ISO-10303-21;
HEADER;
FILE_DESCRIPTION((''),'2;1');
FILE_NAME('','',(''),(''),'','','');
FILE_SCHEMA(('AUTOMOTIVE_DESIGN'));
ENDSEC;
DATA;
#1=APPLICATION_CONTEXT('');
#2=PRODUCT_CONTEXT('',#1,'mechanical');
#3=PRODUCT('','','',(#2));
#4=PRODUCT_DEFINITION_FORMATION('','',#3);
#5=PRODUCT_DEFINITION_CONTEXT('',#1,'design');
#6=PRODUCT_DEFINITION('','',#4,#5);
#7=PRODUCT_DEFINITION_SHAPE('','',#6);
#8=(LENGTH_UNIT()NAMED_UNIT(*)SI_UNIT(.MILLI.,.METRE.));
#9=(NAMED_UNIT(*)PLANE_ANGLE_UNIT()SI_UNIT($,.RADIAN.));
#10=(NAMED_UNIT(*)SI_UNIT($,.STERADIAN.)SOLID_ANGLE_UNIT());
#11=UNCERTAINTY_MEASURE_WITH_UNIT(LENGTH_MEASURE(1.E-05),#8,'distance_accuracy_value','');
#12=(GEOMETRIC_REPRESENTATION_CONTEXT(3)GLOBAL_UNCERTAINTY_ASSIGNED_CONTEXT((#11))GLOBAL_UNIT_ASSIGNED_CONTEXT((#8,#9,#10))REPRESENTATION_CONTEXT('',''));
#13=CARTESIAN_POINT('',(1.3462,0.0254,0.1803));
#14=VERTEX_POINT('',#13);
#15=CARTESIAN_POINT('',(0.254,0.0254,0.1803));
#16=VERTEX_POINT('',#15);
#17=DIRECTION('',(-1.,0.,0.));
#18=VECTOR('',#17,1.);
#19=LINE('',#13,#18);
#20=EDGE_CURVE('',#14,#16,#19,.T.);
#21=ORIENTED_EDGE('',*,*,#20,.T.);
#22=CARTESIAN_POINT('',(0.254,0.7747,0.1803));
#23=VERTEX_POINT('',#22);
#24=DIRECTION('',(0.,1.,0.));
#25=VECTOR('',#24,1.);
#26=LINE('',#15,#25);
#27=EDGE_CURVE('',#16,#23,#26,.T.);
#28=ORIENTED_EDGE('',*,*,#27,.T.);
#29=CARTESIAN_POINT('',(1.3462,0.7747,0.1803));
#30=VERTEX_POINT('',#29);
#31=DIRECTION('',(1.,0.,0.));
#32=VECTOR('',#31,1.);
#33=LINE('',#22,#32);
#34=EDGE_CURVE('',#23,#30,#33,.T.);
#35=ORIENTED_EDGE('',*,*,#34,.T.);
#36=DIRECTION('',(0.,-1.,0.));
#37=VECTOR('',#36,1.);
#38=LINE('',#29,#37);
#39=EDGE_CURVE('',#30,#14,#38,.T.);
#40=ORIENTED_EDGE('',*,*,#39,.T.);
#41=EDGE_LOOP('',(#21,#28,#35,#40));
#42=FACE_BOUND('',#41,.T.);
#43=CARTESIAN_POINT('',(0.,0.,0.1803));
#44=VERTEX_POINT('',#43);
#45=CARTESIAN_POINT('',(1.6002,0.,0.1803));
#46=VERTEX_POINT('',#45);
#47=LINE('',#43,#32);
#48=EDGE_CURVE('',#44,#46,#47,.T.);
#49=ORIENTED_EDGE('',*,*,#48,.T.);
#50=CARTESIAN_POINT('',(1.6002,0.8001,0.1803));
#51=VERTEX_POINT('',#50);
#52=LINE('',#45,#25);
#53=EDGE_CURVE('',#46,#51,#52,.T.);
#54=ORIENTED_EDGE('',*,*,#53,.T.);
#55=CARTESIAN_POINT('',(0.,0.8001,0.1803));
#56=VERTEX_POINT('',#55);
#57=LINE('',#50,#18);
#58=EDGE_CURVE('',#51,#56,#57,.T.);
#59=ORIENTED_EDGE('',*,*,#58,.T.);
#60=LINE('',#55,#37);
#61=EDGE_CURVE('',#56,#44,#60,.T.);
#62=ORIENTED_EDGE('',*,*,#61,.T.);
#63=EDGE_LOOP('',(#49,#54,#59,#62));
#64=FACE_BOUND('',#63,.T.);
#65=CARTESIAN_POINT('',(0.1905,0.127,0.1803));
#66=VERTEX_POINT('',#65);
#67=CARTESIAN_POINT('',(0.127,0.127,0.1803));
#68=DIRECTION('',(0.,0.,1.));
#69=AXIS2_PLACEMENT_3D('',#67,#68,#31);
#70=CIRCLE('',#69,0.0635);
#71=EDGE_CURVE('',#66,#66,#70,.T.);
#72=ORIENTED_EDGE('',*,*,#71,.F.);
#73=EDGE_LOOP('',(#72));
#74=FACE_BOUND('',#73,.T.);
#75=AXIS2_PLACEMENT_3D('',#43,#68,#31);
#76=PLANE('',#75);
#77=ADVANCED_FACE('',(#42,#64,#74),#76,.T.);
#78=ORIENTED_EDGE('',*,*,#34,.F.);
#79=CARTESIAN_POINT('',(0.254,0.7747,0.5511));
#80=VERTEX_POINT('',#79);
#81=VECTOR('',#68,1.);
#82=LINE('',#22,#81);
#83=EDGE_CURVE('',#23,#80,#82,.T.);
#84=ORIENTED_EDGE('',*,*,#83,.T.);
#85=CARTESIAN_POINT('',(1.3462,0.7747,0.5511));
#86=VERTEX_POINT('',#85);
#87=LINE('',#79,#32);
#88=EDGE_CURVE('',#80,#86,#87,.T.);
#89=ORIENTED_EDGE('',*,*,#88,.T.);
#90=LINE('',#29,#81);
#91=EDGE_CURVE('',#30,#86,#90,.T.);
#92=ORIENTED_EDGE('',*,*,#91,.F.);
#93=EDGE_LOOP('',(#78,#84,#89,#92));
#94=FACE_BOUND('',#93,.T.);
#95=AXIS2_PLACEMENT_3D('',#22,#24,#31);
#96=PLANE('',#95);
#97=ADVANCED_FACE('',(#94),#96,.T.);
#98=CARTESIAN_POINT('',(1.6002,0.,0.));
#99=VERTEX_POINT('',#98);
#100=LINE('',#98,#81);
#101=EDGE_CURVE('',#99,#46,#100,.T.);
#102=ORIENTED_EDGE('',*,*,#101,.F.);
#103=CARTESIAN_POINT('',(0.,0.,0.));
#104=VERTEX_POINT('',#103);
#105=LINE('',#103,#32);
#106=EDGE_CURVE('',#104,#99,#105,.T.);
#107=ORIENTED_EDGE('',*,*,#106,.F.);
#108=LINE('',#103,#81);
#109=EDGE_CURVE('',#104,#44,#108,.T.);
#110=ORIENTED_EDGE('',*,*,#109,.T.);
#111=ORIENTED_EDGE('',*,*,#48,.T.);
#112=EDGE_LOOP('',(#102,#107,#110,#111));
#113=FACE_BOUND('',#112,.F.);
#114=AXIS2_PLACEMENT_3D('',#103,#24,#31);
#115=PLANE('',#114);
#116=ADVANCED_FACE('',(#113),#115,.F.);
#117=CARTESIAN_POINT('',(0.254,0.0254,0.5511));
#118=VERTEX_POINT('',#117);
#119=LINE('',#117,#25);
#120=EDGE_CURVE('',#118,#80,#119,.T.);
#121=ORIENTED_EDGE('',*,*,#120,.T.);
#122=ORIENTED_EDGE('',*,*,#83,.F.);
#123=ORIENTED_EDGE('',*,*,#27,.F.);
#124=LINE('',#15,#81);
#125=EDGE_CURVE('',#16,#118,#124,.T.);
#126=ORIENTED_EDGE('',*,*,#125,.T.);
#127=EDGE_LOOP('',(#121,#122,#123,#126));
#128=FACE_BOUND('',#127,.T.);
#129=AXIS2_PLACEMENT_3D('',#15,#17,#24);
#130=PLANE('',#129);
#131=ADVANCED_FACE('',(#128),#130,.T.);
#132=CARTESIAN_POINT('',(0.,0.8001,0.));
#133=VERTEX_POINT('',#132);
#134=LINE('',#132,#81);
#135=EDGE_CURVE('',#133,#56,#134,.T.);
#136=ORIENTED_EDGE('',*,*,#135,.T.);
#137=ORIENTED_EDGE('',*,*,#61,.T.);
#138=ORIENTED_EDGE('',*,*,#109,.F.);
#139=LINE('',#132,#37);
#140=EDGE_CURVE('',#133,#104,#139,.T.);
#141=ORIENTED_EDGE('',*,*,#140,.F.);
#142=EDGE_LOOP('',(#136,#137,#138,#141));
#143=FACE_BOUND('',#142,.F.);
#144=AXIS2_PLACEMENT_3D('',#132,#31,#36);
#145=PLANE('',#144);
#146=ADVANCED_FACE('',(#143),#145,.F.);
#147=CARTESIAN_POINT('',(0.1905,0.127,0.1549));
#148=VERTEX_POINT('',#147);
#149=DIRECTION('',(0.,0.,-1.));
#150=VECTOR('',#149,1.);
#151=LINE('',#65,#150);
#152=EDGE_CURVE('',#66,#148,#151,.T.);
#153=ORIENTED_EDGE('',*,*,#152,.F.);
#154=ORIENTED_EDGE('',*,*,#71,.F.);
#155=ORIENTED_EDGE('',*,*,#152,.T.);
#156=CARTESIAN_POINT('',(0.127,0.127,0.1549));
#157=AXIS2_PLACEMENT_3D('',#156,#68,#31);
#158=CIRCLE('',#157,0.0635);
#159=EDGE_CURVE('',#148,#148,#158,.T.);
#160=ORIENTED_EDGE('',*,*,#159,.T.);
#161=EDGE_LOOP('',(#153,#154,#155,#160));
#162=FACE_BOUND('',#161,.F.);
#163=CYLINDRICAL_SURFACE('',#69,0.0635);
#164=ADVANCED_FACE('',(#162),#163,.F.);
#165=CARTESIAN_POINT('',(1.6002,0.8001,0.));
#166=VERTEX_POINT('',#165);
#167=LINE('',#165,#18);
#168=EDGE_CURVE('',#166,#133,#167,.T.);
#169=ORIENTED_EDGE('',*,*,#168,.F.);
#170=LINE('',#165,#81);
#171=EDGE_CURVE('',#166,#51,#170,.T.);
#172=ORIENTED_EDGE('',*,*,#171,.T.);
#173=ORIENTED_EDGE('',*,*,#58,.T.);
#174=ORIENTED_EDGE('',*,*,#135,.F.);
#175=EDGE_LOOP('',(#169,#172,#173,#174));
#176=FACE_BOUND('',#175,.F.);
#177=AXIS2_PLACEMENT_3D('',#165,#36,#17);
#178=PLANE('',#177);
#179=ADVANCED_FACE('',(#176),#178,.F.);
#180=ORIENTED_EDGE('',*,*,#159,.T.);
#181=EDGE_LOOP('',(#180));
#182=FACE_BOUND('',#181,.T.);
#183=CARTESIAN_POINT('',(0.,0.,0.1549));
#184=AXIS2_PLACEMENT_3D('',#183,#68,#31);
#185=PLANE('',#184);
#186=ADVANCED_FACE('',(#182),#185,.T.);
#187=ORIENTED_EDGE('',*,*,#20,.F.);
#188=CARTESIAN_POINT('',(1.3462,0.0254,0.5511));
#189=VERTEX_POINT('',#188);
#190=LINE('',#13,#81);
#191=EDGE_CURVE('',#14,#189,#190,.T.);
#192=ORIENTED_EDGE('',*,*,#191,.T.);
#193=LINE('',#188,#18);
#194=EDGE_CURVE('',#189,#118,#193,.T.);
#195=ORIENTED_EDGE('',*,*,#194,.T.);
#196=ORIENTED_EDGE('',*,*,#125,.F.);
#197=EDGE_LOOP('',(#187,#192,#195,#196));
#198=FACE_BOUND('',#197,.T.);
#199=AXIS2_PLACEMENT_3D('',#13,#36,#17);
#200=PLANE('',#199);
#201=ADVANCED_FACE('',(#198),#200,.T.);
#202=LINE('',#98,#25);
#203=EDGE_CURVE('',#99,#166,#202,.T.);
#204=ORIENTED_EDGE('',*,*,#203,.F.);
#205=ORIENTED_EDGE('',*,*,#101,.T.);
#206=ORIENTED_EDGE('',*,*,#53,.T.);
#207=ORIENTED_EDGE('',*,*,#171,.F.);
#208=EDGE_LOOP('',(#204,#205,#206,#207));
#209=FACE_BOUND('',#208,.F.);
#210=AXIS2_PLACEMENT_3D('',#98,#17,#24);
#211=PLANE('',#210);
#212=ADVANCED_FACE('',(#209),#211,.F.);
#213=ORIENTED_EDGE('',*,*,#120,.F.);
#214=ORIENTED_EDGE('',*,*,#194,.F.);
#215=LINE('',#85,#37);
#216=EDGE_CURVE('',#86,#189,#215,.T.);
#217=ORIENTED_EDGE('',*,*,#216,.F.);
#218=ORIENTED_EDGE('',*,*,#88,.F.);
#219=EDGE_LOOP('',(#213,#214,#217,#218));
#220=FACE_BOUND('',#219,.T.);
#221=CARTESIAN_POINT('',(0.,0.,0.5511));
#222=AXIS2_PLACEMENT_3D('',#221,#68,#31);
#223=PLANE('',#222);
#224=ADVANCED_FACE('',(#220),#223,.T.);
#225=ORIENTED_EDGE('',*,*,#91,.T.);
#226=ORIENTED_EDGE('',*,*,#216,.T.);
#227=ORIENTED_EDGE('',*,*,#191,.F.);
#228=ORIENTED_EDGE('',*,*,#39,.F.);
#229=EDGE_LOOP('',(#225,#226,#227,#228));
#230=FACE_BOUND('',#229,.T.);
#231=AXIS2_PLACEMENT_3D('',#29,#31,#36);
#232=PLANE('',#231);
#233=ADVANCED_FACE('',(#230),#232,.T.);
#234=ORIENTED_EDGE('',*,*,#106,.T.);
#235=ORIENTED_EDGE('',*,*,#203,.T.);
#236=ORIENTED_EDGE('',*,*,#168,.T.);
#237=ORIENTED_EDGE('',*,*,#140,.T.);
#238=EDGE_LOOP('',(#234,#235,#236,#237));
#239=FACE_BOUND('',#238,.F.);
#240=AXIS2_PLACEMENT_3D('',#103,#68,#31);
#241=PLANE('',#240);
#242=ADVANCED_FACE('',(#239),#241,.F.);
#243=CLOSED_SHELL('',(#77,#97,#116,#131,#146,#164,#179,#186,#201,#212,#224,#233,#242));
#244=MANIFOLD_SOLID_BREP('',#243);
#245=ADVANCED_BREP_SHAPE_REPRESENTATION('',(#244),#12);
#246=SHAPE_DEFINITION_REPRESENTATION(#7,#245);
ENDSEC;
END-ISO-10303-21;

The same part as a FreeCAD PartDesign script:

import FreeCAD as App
import Part
import Sketcher
Q = App.Units.Quantity


def add_polygon(sketch, points):
    """Adds a closed chain of lines whose ends are joined by coincident constraints."""
    first, n = sketch.GeometryCount, len(points)
    for a, b in zip(points, points[1:] + points[:1]):
        sketch.addGeometry(Part.LineSegment(App.Vector(*a, 0), App.Vector(*b, 0)), False)
    for i in range(n):
        sketch.addConstraint(Sketcher.Constraint("Coincident", first + i, 2, first + (i + 1) % n, 1))

doc = App.newDocument("Part")
params = doc.addObject("Spreadsheet::Sheet", "Params")
for row, (alias, value) in enumerate([
    ("sketch1_width", "0.063 in"),
    ("pad1_length", "0.0070984 in"),
    ("sketch2_width", "0.043 in"),
    ("pad2_length", "0.0145984 in"),
    ("sketch3_diameter", "0.005 in"),
    ("pocket1_length", "0.001 in"),
], start=1):
    params.set(f"A{row}", alias)
    params.set(f"B{row}", "=" + value)
    params.setAlias(f"B{row}", alias)

body = doc.addObject("PartDesign::Body", "Body")

sketch1 = body.newObject("Sketcher::SketchObject", "Sketch")
sketch1.AttachmentSupport = (doc.getObject("XY_Plane"), [""])
sketch1.MapMode = "FlatFace"
add_polygon(sketch1, [(0, 0.8), (0, 0), (1.6, 0), (1.6, 0.8)])
sketch1.addConstraint([
    Sketcher.Constraint("Vertical", 0),
    Sketcher.Constraint("Horizontal", 1),
    Sketcher.Constraint("Vertical", 2),
    Sketcher.Constraint("Horizontal", 3),
    Sketcher.Constraint("Coincident", 0, 2, -1, 1),
    Sketcher.Constraint("DistanceX", 1, 1, 1, 2, Q("0.063 in")),
    Sketcher.Constraint("DistanceY", 0, 2, 0, 1, Q("0.0315 in")),
])
sketch1.setExpression("Constraints[9]", "Params.sketch1_width")
pad1 = body.newObject("PartDesign::Pad", "Pad")
pad1.Profile = sketch1
pad1.setExpression("Length", "Params.pad1_length")

sketch2 = body.newObject("Sketcher::SketchObject", "Sketch001")
sketch2.AttachmentSupport = (doc.getObject("XY_Plane"), [""])
sketch2.MapMode = "FlatFace"
sketch2.AttachmentOffset = App.Placement(App.Vector(0, 0, 0.0070984 * 25.4), App.Rotation())
add_polygon(sketch2, [(1.3, 0.8), (0.3, 0.8), (0.3, 0), (1.3, 0)])
sketch2.addConstraint([
    Sketcher.Constraint("Horizontal", 0),
    Sketcher.Constraint("Vertical", 1),
    Sketcher.Constraint("Horizontal", 2),
    Sketcher.Constraint("Vertical", 3),
    Sketcher.Constraint("DistanceX", -1, 1, 0, 2, Q("0.01 in")),
    Sketcher.Constraint("DistanceY", -1, 1, 1, 2, Q("0.001 in")),
    Sketcher.Constraint("DistanceX", 0, 2, 0, 1, Q("0.043 in")),
    Sketcher.Constraint("DistanceY", 1, 2, 1, 1, Q("0.0295 in")),
])
sketch2.setExpression("Constraints[10]", "Params.sketch2_width")
pad2 = body.newObject("PartDesign::Pad", "Pad001")
pad2.Profile = sketch2
pad2.setExpression("Length", "Params.pad2_length")

sketch3 = body.newObject("Sketcher::SketchObject", "Sketch002")
sketch3.AttachmentSupport = (doc.getObject("XY_Plane"), [""])
sketch3.MapMode = "FlatFace"
sketch3.AttachmentOffset = App.Placement(App.Vector(0, 0, 0.0070984 * 25.4), App.Rotation())
sketch3.addGeometry(Part.Circle(App.Vector(0.13, 0.13, 0), App.Vector(0, 0, 1), 0.06), False)
sketch3.addConstraint([
    Sketcher.Constraint("Diameter", 0, Q("0.005 in")),
    Sketcher.Constraint("DistanceX", -1, 1, 0, 3, Q("0.005 in")),
    Sketcher.Constraint("DistanceY", -1, 1, 0, 3, Q("0.005 in")),
])
sketch3.setExpression("Constraints[0]", "Params.sketch3_diameter")
pocket1 = body.newObject("PartDesign::Pocket", "Pocket")
pocket1.Profile = sketch3
pocket1.setExpression("Length", "Params.pocket1_length")

doc.recompute()
